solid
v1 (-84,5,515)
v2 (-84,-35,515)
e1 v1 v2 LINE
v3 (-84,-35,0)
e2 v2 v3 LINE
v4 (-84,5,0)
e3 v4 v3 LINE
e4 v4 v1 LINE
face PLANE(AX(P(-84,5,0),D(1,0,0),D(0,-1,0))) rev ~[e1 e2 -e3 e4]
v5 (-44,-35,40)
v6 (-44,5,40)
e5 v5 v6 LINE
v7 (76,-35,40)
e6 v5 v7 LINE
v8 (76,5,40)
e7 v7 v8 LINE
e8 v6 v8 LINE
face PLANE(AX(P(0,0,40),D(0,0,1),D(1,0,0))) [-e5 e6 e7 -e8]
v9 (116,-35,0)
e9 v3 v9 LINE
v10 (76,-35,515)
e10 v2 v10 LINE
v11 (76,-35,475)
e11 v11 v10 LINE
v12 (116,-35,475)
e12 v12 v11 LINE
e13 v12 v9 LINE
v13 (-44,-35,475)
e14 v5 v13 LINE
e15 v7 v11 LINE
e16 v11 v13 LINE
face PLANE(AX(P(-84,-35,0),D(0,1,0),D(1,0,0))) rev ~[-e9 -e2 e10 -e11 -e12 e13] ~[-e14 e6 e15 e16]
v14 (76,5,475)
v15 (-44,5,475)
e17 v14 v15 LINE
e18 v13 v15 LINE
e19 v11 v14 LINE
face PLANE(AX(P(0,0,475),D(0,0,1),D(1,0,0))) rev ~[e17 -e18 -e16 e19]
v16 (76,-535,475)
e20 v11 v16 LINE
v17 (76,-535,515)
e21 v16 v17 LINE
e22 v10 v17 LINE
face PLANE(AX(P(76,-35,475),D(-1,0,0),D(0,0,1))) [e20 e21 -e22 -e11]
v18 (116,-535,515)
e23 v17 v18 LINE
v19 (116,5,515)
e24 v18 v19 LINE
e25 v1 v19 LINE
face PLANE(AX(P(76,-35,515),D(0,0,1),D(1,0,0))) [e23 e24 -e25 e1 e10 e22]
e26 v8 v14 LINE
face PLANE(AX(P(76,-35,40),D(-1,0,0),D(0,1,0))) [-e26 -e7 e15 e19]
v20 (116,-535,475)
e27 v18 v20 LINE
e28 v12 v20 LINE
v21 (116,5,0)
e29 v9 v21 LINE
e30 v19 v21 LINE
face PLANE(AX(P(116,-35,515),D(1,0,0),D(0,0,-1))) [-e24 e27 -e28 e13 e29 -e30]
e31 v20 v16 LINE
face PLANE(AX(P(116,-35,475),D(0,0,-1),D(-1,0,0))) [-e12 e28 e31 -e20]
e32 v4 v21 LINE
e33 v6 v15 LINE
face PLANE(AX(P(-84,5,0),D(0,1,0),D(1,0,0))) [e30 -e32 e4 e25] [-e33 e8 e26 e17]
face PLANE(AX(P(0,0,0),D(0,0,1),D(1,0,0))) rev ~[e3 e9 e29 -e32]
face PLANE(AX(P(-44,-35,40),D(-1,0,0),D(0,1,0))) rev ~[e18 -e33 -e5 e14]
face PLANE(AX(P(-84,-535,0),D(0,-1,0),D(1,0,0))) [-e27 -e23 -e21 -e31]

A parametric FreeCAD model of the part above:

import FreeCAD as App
import Part
import Sketcher
Q = App.Units.Quantity


def add_polygon(sketch, points):
    """Adds a closed chain of lines whose ends are joined by coincident constraints."""
    first, n = sketch.GeometryCount, len(points)
    for a, b in zip(points, points[1:] + points[:1]):
        sketch.addGeometry(Part.LineSegment(App.Vector(*a, 0), App.Vector(*b, 0)), False)
    for i in range(n):
        sketch.addConstraint(Sketcher.Constraint("Coincident", first + i, 2, first + (i + 1) % n, 1))

doc = App.newDocument("Part")
body = doc.addObject("PartDesign::Body", "Body")

# Sketch on XY plane
sketch1 = body.newObject("Sketcher::SketchObject", "Sketch")
sketch1.AttachmentSupport = (doc.getObject("XY_Plane"), [""])
sketch1.MapMode = "FlatFace"
add_polygon(sketch1, [(116, 5), (-84, 5), (-84, -35), (116, -35)])  # lines 0-3
sketch1.addConstraint([
    Sketcher.Constraint("Horizontal", 0),
    Sketcher.Constraint("Vertical", 1),
    Sketcher.Constraint("Horizontal", 2),
    Sketcher.Constraint("Vertical", 3),
    Sketcher.Constraint("DistanceX", 0, 2, 0, 1, Q("200 mm")),
    Sketcher.Constraint("DistanceY", 1, 2, 1, 1, Q("40 mm")),
    Sketcher.Constraint("DistanceY", -1, 1, 0, 2, Q("5 mm")),
    Sketcher.Constraint("DistanceX", 0, 2, -1, 1, Q("84 mm")),
])
pad1 = body.newObject("PartDesign::Pad", "Pad")
pad1.Profile = sketch1
pad1.Length = 40

# Sketch on XY plane
sketch2 = body.newObject("Sketcher::SketchObject", "Sketch001")
sketch2.AttachmentSupport = (doc.getObject("XY_Plane"), [""])
sketch2.MapMode = "FlatFace"
sketch2.AttachmentOffset = App.Placement(App.Vector(0, 0, 40), App.Rotation())
add_polygon(sketch2, [(76, -35), (116, -35), (116, 5), (76, 5)])  # lines 0-3
add_polygon(sketch2, [(-44, 5), (-84, 5), (-84, -35), (-44, -35)])  # lines 4-7
sketch2.addConstraint([
    Sketcher.Constraint("Horizontal", 0),
    Sketcher.Constraint("Vertical", 1),
    Sketcher.Constraint("Horizontal", 2),
    Sketcher.Constraint("Vertical", 3),
    Sketcher.Constraint("Horizontal", 4),
    Sketcher.Constraint("Vertical", 5),
    Sketcher.Constraint("Horizontal", 6),
    Sketcher.Constraint("Vertical", 7),
    Sketcher.Constraint("Horizontal", 2, 2, 4, 2),
    Sketcher.Constraint("Horizontal", 3, 2, 5, 2),
    Sketcher.Constraint("Equal", 2, 4),
    Sketcher.Constraint("Equal", 6, 1),
    Sketcher.Constraint("DistanceX", 0, 1, 0, 2, Q("40 mm")),
    Sketcher.Constraint("DistanceX", -1, 1, 0, 2, Q("116 mm")),
    Sketcher.Constraint("DistanceY", 0, 2, -1, 1, Q("35 mm")),
    Sketcher.Constraint("DistanceX", 4, 2, -1, 1, Q("84 mm")),
])
pad2 = body.newObject("PartDesign::Pad", "Pad001")
pad2.Profile = sketch2
pad2.Length = 475

# Sketch on XY plane
sketch3 = body.newObject("Sketcher::SketchObject", "Sketch002")
sketch3.AttachmentSupport = (doc.getObject("XY_Plane"), [""])
sketch3.MapMode = "FlatFace"
sketch3.AttachmentOffset = App.Placement(App.Vector(0, 0, 515), App.Rotation())
add_polygon(sketch3, [(-84, -35), (116, -35), (116, 5), (-84, 5)])  # lines 0-3
sketch3.addConstraint([
    Sketcher.Constraint("Horizontal", 0),
    Sketcher.Constraint("Vertical", 1),
    Sketcher.Constraint("Horizontal", 2),
    Sketcher.Constraint("Vertical", 3),
    Sketcher.Constraint("DistanceX", 0, 1, 0, 2, Q("200 mm")),
    Sketcher.Constraint("DistanceY", 1, 1, 1, 2, Q("40 mm")),
    Sketcher.Constraint("DistanceX", -1, 1, 0, 2, Q("116 mm")),
    Sketcher.Constraint("DistanceY", 0, 2, -1, 1, Q("35 mm")),
])
pad3 = body.newObject("PartDesign::Pad", "Pad002")
pad3.Profile = sketch3
pad3.Length = 40
pad3.Reversed = True

# Sketch on XZ plane
sketch4 = body.newObject("Sketcher::SketchObject", "Sketch003")
sketch4.AttachmentSupport = (doc.getObject("XZ_Plane"), [""])
sketch4.MapMode = "FlatFace"
sketch4.AttachmentOffset = App.Placement(App.Vector(0, 0, 35), App.Rotation())
add_polygon(sketch4, [(116, 515), (76, 515), (76, 475), (116, 475)])  # lines 0-3
sketch4.addConstraint([
    Sketcher.Constraint("Horizontal", 0),
    Sketcher.Constraint("Vertical", 1),
    Sketcher.Constraint("Horizontal", 2),
    Sketcher.Constraint("Vertical", 3),
    Sketcher.Constraint("Equal", 2, 1),
    Sketcher.Constraint("DistanceX", 0, 2, 0, 1, Q("40 mm")),
    Sketcher.Constraint("DistanceX", -1, 1, 0, 2, Q("76 mm")),
    Sketcher.Constraint("DistanceY", -1, 1, 0, 2, Q("515 mm")),
])
pad4 = body.newObject("PartDesign::Pad", "Pad003")
pad4.Profile = sketch4
pad4.Length = 500

doc.recompute()
